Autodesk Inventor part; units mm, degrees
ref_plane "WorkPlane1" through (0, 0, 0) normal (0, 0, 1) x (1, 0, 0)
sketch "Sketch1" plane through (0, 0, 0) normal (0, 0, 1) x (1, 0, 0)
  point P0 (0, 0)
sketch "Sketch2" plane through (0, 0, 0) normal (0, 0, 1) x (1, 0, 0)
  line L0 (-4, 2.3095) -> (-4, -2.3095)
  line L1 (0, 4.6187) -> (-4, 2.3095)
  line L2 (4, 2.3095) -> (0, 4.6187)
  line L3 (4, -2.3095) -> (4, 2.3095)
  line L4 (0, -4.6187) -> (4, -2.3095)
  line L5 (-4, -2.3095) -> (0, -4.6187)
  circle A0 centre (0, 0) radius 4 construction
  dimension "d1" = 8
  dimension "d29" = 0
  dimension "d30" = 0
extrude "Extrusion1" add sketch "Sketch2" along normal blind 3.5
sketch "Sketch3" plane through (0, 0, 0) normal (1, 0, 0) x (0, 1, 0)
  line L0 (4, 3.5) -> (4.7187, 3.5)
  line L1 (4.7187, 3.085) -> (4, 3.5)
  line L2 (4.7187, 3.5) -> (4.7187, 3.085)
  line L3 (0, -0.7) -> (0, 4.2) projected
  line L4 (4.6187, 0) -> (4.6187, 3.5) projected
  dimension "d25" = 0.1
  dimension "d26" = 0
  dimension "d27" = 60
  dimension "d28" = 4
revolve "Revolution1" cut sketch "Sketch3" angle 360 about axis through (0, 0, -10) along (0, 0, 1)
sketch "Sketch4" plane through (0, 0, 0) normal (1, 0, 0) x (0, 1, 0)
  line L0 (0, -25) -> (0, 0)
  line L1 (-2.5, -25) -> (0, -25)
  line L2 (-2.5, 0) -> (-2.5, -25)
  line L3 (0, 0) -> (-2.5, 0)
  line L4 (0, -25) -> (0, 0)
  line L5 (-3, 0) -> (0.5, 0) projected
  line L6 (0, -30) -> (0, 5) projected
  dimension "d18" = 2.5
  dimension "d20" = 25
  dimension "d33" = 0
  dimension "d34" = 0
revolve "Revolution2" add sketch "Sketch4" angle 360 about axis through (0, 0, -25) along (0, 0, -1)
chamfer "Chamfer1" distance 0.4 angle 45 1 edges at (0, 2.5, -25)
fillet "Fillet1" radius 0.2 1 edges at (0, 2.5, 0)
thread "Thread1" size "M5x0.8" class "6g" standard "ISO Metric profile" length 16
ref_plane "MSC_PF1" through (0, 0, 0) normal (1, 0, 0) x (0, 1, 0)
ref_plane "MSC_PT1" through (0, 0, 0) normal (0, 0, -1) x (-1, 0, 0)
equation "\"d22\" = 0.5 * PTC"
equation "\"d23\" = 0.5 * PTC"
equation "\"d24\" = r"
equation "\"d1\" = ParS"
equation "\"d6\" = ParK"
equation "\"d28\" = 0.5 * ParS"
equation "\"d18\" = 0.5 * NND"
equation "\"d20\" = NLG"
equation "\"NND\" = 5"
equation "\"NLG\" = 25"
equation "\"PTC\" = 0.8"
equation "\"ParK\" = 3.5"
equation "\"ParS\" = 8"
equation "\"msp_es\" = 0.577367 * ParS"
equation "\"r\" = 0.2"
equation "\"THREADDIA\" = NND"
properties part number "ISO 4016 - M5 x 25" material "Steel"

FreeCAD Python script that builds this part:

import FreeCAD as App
import Part
import Sketcher

V = App.Vector


def edges_at(feature, points):
    """Names of the edges that pass closest to the given points."""
    edges = feature.Shape.Edges
    near = lambda p: min(range(len(edges)), key=lambda i: edges[i].distToShape(Part.Vertex(*p))[0])
    return sorted({f"Edge{near(p) + 1}" for p in points})

doc = App.newDocument("Part")
params = doc.addObject("Spreadsheet::Sheet", "Params")
for row, (alias, value) in enumerate([
    ("pad1_length", "3.5 mm"),
    ("sketch2_length", "0.83 mm"),
    ("groove_angle", "360 deg"),
    ("sketch3_height", "25 mm"),
    ("sketch3_width", "2.5 mm"),
    ("revolution_angle", "360 deg"),
    ("chamfer_size", "0.4 mm"),
    ("fillet_radius", "0.2 mm"),
], start=1):
    params.set(f"A{row}", alias)
    params.set(f"B{row}", "=" + value)
    params.setAlias(f"B{row}", alias)

body = doc.addObject("PartDesign::Body", "Body")

# Sketch on XY plane
sketch1 = body.newObject("Sketcher::SketchObject", "Sketch")
sketch1.AttachmentSupport = (doc.getObject("XY_Plane"), [""])
sketch1.MapMode = "FlatFace"
sketch1.addGeometry([
    Part.LineSegment(V(0, 4.6, 0), V(-4, 2.3, 0)),  # 0
    Part.LineSegment(V(-4, 2.3, 0), V(-4, -2.3, 0)),  # 1
    Part.LineSegment(V(-4, -2.3, 0), V(0, -4.6, 0)),  # 2
    Part.LineSegment(V(0, -4.6, 0), V(4, -2.3, 0)),  # 3
    Part.LineSegment(V(4, -2.3, 0), V(4, 2.3, 0)),  # 4
    Part.LineSegment(V(4, 2.3, 0), V(0, 4.6, 0)),  # 5
], False)
sketch1.addConstraint([
    Sketcher.Constraint("Coincident", 0, 2, 1, 1),
    Sketcher.Constraint("Coincident", 1, 2, 2, 1),
    Sketcher.Constraint("Coincident", 2, 2, 3, 1),
    Sketcher.Constraint("Coincident", 3, 2, 4, 1),
    Sketcher.Constraint("Coincident", 4, 2, 5, 1),
    Sketcher.Constraint("Coincident", 5, 2, 0, 1),
    Sketcher.Constraint("Vertical", 1),
    Sketcher.Constraint("Vertical", 4),
    Sketcher.Constraint("Symmetric", 0, 2, 3, 2, -1, 1),
    Sketcher.Constraint("Symmetric", 2, 2, 5, 2, -1, 1),
    Sketcher.Constraint("PointOnObject", 2, 2, -2),
    Sketcher.Constraint("Parallel", 2, 5),
    Sketcher.Constraint("Horizontal", 1, 2, 3, 2),
    Sketcher.Constraint("DistanceX", 1, 2, 3, 2, 8.0),
    Sketcher.Constraint("DistanceY", 1, 2, 1, 1, 4.619),
    Sketcher.Constraint("Distance", 0, 4.6187),
])
pad1 = body.newObject("PartDesign::Pad", "Pad")
pad1.Profile = sketch1
pad1.setExpression("Length", "Params.pad1_length")

# Sketch on YZ plane
sketch2 = body.newObject("Sketcher::SketchObject", "Sketch001")
sketch2.AttachmentSupport = (doc.getObject("YZ_Plane"), [""])
sketch2.MapMode = "FlatFace"
sketch2.addGeometry([
    Part.LineSegment(V(4, 3.5, 0), V(4.72, 3.08, 0)),
    Part.LineSegment(V(4.72, 3.08, 0), V(4.72, 3.5, 0)),
    Part.LineSegment(V(4.72, 3.5, 0), V(4, 3.5, 0)),
], False)
sketch2.addConstraint([
    Sketcher.Constraint("Coincident", 0, 2, 1, 1),
    Sketcher.Constraint("Coincident", 1, 2, 2, 1),
    Sketcher.Constraint("Coincident", 2, 2, 0, 1),
    Sketcher.Constraint("Vertical", 1),
    Sketcher.Constraint("Horizontal", 2),
    Sketcher.Constraint("DistanceX", -1, 1, 2, 2, 4.0),
    Sketcher.Constraint("DistanceY", -1, 1, 1, 2, 3.5),
    Sketcher.Constraint("Distance", 0, 0.83),
    Sketcher.Constraint("DistanceY", 1, 1, 1, 2, 0.415),
])
sketch2.setExpression("Constraints[7]", "Params.sketch2_length")
groove = body.newObject("PartDesign::Groove", "Groove")
groove.Profile = sketch2
groove.ReferenceAxis = (sketch2, ["V_Axis"])
groove.setExpression("Angle", "Params.groove_angle")

# Sketch on YZ plane
sketch3 = body.newObject("Sketcher::SketchObject", "Sketch002")
sketch3.AttachmentSupport = (doc.getObject("YZ_Plane"), [""])
sketch3.MapMode = "FlatFace"
sketch3.addGeometry([
    Part.LineSegment(V(-2.5, -25, 0), V(0, -25, 0)),
    Part.LineSegment(V(0, -25, 0), V(0, 0, 0)),
    Part.LineSegment(V(0, 0, 0), V(-2.5, 0, 0)),
    Part.LineSegment(V(-2.5, 0, 0), V(-2.5, -25, 0)),
], False)
sketch3.addConstraint([
    Sketcher.Constraint("Coincident", 0, 2, 1, 1),
    Sketcher.Constraint("Coincident", 1, 2, 2, 1),
    Sketcher.Constraint("Coincident", 2, 2, 3, 1),
    Sketcher.Constraint("Coincident", 3, 2, 0, 1),
    Sketcher.Constraint("Horizontal", 0),
    Sketcher.Constraint("Vertical", 1),
    Sketcher.Constraint("Horizontal", 2),
    Sketcher.Constraint("Vertical", 3),
    Sketcher.Constraint("Coincident", 1, 2, -1, 1),
    Sketcher.Constraint("DistanceY", 1, 1, 1, 2, 25.0),
    Sketcher.Constraint("DistanceX", 0, 1, 0, 2, 2.5),
])
sketch3.setExpression("Constraints[9]", "Params.sketch3_height")
sketch3.setExpression("Constraints[10]", "Params.sketch3_width")
revolution = body.newObject("PartDesign::Revolution", "Revolution")
revolution.Profile = sketch3
revolution.ReferenceAxis = (sketch3, ["V_Axis"])
revolution.setExpression("Angle", "Params.revolution_angle")
doc.recompute()

chamfer = body.newObject("PartDesign::Chamfer", "Chamfer")
chamfer.Base = (revolution, edges_at(revolution, [(0, 2.5, -25)]))
chamfer.setExpression("Size", "Params.chamfer_size")
doc.recompute()

fillet = body.newObject("PartDesign::Fillet", "Fillet")
fillet.Base = (chamfer, edges_at(chamfer, [(0, 2.5, 0)]))
fillet.setExpression("Radius", "Params.fillet_radius")

doc.recompute()
